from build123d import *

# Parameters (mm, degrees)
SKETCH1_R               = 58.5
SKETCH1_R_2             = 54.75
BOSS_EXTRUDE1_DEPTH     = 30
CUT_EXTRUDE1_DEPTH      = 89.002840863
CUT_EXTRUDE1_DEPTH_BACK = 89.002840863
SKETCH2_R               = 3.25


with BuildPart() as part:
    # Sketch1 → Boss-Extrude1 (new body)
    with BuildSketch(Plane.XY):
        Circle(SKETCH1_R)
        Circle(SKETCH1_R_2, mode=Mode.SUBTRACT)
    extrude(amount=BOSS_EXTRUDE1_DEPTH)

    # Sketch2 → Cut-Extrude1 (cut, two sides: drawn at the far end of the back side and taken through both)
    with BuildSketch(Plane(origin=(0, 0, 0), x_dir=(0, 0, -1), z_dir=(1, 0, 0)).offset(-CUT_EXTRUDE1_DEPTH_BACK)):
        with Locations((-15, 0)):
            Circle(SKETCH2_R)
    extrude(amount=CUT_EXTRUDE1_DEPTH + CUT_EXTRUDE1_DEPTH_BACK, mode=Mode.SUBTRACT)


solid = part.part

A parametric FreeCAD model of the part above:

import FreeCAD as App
import Part
import Sketcher

doc = App.newDocument("Part")
body = doc.addObject("PartDesign::Body", "Body")

sketch1 = body.newObject("Sketcher::SketchObject", "Sketch")
sketch1.AttachmentSupport = (doc.getObject("XY_Plane"), [""])
sketch1.MapMode = "FlatFace"
sketch1.addGeometry([
    Part.Circle(App.Vector(0, 0, 0), App.Vector(0, 0, 1), 58),
    Part.Circle(App.Vector(0, 0, 0), App.Vector(0, 0, 1), 55),
], False)
sketch1.addConstraint([
    Sketcher.Constraint("Coincident", 0, 3, -1, 1),
    Sketcher.Constraint("Coincident", 1, 3, -1, 1),
    Sketcher.Constraint("Diameter", 0, 117.0),
    Sketcher.Constraint("Diameter", 1, 109.5),
])
pad1 = body.newObject("PartDesign::Pad", "Pad")
pad1.Profile = sketch1
pad1.Length = 30

sketch2 = body.newObject("Sketcher::SketchObject", "Sketch001")
sketch2.AttachmentSupport = (doc.getObject("YZ_Plane"), [""])
sketch2.MapMode = "FlatFace"
sketch2.addGeometry(Part.Circle(App.Vector(0, 15, 0), App.Vector(0, 0, 1), 3.2), False)
sketch2.addConstraint([
    Sketcher.Constraint("PointOnObject", 0, 3, -2),
    Sketcher.Constraint("Diameter", 0, 6.5),
    Sketcher.Constraint("DistanceY", -1, 1, 0, 3, 15.0),
])
pocket1 = body.newObject("PartDesign::Pocket", "Pocket")
pocket1.Profile = sketch2
pocket1.Type = "ThroughAll"
pocket1.Midplane = True

doc.recompute()
